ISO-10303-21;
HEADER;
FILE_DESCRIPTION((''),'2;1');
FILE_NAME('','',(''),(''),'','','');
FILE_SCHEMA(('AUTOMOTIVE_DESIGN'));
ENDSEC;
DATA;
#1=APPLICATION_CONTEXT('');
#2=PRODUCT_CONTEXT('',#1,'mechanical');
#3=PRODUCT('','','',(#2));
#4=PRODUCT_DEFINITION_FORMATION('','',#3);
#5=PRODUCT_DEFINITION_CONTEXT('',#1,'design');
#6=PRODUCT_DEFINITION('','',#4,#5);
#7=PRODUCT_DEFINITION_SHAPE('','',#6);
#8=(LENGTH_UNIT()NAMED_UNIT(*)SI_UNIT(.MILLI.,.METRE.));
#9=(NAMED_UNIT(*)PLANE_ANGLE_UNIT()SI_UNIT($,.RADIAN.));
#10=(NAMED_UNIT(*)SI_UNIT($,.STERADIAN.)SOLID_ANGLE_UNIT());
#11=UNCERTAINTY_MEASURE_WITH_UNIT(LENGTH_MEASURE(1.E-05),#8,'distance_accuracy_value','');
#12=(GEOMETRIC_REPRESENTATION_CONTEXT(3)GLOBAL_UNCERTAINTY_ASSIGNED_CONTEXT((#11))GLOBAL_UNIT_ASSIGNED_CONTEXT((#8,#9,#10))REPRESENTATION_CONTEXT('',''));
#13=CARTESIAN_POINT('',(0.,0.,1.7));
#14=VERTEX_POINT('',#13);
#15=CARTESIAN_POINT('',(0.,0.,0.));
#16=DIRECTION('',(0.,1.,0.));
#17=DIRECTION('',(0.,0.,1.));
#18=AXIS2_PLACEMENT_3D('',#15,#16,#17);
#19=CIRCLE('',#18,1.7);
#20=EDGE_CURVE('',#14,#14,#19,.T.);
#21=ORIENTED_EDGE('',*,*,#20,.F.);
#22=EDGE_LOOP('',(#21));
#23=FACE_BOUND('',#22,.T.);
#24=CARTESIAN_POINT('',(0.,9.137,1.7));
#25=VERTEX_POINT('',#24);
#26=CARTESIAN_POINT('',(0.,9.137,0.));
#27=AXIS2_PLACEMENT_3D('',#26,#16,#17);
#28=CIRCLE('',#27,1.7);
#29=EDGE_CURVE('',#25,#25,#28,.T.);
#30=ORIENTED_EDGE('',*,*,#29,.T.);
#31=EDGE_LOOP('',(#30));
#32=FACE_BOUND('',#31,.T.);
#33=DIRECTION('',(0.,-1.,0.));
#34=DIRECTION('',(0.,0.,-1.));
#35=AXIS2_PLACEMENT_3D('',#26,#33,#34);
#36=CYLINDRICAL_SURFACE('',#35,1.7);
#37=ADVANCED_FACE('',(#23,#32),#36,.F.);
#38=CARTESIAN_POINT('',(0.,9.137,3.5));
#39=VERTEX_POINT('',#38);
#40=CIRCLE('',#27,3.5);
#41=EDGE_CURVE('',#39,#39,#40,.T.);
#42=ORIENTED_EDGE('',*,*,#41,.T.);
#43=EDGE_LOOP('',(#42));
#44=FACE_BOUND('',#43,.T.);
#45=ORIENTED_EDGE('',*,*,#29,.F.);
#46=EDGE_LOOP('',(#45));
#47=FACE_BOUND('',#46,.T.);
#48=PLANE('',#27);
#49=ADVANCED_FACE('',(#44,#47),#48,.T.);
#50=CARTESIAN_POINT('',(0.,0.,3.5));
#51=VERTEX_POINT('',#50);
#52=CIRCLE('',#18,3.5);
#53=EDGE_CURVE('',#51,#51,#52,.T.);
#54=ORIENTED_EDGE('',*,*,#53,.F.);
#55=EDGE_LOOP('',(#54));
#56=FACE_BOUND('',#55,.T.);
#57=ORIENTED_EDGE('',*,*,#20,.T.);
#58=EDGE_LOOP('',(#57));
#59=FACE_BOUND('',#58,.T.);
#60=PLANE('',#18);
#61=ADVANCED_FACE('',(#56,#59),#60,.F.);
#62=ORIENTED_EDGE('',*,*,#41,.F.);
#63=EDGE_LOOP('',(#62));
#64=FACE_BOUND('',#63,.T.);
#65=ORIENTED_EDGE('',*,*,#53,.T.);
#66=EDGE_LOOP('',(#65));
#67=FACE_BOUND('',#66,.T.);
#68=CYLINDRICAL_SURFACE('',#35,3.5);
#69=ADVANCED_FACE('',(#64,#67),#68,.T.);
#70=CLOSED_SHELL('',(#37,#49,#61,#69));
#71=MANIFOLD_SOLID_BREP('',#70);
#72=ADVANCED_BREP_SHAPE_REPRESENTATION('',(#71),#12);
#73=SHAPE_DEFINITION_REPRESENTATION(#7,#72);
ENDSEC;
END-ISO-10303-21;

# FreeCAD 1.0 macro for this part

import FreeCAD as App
import Part
import Sketcher

doc = App.newDocument("Part")
body = doc.addObject("PartDesign::Body", "Body")

sketch1 = doc.addObject("Sketcher::SketchObject", "Sketch")
body.addObject(sketch1)
sketch1.AttachmentSupport = (doc.XZ_Plane, [""])
sketch1.MapMode = "FlatFace"
sketch1.addGeometry(Part.Circle(App.Vector(0, 0, 0), App.Vector(0, 0, 1), 3.5), False)
sketch1.addGeometry(Part.Circle(App.Vector(0, 0, 0), App.Vector(0, 0, 1), 1.7), False)
sketch1.addConstraint(Sketcher.Constraint("Coincident", 0, 3, -1, 1))
sketch1.addConstraint(Sketcher.Constraint("Coincident", 1, 3, -1, 1))
sketch1.addConstraint(Sketcher.Constraint("Diameter", 0, 7.0))
sketch1.addConstraint(Sketcher.Constraint("Diameter", 1, 3.4))
pad1 = doc.addObject("PartDesign::Pad", "Pad")
body.addObject(pad1)
pad1.Profile = sketch1
pad1.Length = 9.137
pad1.Reversed = True

doc.recompute()
